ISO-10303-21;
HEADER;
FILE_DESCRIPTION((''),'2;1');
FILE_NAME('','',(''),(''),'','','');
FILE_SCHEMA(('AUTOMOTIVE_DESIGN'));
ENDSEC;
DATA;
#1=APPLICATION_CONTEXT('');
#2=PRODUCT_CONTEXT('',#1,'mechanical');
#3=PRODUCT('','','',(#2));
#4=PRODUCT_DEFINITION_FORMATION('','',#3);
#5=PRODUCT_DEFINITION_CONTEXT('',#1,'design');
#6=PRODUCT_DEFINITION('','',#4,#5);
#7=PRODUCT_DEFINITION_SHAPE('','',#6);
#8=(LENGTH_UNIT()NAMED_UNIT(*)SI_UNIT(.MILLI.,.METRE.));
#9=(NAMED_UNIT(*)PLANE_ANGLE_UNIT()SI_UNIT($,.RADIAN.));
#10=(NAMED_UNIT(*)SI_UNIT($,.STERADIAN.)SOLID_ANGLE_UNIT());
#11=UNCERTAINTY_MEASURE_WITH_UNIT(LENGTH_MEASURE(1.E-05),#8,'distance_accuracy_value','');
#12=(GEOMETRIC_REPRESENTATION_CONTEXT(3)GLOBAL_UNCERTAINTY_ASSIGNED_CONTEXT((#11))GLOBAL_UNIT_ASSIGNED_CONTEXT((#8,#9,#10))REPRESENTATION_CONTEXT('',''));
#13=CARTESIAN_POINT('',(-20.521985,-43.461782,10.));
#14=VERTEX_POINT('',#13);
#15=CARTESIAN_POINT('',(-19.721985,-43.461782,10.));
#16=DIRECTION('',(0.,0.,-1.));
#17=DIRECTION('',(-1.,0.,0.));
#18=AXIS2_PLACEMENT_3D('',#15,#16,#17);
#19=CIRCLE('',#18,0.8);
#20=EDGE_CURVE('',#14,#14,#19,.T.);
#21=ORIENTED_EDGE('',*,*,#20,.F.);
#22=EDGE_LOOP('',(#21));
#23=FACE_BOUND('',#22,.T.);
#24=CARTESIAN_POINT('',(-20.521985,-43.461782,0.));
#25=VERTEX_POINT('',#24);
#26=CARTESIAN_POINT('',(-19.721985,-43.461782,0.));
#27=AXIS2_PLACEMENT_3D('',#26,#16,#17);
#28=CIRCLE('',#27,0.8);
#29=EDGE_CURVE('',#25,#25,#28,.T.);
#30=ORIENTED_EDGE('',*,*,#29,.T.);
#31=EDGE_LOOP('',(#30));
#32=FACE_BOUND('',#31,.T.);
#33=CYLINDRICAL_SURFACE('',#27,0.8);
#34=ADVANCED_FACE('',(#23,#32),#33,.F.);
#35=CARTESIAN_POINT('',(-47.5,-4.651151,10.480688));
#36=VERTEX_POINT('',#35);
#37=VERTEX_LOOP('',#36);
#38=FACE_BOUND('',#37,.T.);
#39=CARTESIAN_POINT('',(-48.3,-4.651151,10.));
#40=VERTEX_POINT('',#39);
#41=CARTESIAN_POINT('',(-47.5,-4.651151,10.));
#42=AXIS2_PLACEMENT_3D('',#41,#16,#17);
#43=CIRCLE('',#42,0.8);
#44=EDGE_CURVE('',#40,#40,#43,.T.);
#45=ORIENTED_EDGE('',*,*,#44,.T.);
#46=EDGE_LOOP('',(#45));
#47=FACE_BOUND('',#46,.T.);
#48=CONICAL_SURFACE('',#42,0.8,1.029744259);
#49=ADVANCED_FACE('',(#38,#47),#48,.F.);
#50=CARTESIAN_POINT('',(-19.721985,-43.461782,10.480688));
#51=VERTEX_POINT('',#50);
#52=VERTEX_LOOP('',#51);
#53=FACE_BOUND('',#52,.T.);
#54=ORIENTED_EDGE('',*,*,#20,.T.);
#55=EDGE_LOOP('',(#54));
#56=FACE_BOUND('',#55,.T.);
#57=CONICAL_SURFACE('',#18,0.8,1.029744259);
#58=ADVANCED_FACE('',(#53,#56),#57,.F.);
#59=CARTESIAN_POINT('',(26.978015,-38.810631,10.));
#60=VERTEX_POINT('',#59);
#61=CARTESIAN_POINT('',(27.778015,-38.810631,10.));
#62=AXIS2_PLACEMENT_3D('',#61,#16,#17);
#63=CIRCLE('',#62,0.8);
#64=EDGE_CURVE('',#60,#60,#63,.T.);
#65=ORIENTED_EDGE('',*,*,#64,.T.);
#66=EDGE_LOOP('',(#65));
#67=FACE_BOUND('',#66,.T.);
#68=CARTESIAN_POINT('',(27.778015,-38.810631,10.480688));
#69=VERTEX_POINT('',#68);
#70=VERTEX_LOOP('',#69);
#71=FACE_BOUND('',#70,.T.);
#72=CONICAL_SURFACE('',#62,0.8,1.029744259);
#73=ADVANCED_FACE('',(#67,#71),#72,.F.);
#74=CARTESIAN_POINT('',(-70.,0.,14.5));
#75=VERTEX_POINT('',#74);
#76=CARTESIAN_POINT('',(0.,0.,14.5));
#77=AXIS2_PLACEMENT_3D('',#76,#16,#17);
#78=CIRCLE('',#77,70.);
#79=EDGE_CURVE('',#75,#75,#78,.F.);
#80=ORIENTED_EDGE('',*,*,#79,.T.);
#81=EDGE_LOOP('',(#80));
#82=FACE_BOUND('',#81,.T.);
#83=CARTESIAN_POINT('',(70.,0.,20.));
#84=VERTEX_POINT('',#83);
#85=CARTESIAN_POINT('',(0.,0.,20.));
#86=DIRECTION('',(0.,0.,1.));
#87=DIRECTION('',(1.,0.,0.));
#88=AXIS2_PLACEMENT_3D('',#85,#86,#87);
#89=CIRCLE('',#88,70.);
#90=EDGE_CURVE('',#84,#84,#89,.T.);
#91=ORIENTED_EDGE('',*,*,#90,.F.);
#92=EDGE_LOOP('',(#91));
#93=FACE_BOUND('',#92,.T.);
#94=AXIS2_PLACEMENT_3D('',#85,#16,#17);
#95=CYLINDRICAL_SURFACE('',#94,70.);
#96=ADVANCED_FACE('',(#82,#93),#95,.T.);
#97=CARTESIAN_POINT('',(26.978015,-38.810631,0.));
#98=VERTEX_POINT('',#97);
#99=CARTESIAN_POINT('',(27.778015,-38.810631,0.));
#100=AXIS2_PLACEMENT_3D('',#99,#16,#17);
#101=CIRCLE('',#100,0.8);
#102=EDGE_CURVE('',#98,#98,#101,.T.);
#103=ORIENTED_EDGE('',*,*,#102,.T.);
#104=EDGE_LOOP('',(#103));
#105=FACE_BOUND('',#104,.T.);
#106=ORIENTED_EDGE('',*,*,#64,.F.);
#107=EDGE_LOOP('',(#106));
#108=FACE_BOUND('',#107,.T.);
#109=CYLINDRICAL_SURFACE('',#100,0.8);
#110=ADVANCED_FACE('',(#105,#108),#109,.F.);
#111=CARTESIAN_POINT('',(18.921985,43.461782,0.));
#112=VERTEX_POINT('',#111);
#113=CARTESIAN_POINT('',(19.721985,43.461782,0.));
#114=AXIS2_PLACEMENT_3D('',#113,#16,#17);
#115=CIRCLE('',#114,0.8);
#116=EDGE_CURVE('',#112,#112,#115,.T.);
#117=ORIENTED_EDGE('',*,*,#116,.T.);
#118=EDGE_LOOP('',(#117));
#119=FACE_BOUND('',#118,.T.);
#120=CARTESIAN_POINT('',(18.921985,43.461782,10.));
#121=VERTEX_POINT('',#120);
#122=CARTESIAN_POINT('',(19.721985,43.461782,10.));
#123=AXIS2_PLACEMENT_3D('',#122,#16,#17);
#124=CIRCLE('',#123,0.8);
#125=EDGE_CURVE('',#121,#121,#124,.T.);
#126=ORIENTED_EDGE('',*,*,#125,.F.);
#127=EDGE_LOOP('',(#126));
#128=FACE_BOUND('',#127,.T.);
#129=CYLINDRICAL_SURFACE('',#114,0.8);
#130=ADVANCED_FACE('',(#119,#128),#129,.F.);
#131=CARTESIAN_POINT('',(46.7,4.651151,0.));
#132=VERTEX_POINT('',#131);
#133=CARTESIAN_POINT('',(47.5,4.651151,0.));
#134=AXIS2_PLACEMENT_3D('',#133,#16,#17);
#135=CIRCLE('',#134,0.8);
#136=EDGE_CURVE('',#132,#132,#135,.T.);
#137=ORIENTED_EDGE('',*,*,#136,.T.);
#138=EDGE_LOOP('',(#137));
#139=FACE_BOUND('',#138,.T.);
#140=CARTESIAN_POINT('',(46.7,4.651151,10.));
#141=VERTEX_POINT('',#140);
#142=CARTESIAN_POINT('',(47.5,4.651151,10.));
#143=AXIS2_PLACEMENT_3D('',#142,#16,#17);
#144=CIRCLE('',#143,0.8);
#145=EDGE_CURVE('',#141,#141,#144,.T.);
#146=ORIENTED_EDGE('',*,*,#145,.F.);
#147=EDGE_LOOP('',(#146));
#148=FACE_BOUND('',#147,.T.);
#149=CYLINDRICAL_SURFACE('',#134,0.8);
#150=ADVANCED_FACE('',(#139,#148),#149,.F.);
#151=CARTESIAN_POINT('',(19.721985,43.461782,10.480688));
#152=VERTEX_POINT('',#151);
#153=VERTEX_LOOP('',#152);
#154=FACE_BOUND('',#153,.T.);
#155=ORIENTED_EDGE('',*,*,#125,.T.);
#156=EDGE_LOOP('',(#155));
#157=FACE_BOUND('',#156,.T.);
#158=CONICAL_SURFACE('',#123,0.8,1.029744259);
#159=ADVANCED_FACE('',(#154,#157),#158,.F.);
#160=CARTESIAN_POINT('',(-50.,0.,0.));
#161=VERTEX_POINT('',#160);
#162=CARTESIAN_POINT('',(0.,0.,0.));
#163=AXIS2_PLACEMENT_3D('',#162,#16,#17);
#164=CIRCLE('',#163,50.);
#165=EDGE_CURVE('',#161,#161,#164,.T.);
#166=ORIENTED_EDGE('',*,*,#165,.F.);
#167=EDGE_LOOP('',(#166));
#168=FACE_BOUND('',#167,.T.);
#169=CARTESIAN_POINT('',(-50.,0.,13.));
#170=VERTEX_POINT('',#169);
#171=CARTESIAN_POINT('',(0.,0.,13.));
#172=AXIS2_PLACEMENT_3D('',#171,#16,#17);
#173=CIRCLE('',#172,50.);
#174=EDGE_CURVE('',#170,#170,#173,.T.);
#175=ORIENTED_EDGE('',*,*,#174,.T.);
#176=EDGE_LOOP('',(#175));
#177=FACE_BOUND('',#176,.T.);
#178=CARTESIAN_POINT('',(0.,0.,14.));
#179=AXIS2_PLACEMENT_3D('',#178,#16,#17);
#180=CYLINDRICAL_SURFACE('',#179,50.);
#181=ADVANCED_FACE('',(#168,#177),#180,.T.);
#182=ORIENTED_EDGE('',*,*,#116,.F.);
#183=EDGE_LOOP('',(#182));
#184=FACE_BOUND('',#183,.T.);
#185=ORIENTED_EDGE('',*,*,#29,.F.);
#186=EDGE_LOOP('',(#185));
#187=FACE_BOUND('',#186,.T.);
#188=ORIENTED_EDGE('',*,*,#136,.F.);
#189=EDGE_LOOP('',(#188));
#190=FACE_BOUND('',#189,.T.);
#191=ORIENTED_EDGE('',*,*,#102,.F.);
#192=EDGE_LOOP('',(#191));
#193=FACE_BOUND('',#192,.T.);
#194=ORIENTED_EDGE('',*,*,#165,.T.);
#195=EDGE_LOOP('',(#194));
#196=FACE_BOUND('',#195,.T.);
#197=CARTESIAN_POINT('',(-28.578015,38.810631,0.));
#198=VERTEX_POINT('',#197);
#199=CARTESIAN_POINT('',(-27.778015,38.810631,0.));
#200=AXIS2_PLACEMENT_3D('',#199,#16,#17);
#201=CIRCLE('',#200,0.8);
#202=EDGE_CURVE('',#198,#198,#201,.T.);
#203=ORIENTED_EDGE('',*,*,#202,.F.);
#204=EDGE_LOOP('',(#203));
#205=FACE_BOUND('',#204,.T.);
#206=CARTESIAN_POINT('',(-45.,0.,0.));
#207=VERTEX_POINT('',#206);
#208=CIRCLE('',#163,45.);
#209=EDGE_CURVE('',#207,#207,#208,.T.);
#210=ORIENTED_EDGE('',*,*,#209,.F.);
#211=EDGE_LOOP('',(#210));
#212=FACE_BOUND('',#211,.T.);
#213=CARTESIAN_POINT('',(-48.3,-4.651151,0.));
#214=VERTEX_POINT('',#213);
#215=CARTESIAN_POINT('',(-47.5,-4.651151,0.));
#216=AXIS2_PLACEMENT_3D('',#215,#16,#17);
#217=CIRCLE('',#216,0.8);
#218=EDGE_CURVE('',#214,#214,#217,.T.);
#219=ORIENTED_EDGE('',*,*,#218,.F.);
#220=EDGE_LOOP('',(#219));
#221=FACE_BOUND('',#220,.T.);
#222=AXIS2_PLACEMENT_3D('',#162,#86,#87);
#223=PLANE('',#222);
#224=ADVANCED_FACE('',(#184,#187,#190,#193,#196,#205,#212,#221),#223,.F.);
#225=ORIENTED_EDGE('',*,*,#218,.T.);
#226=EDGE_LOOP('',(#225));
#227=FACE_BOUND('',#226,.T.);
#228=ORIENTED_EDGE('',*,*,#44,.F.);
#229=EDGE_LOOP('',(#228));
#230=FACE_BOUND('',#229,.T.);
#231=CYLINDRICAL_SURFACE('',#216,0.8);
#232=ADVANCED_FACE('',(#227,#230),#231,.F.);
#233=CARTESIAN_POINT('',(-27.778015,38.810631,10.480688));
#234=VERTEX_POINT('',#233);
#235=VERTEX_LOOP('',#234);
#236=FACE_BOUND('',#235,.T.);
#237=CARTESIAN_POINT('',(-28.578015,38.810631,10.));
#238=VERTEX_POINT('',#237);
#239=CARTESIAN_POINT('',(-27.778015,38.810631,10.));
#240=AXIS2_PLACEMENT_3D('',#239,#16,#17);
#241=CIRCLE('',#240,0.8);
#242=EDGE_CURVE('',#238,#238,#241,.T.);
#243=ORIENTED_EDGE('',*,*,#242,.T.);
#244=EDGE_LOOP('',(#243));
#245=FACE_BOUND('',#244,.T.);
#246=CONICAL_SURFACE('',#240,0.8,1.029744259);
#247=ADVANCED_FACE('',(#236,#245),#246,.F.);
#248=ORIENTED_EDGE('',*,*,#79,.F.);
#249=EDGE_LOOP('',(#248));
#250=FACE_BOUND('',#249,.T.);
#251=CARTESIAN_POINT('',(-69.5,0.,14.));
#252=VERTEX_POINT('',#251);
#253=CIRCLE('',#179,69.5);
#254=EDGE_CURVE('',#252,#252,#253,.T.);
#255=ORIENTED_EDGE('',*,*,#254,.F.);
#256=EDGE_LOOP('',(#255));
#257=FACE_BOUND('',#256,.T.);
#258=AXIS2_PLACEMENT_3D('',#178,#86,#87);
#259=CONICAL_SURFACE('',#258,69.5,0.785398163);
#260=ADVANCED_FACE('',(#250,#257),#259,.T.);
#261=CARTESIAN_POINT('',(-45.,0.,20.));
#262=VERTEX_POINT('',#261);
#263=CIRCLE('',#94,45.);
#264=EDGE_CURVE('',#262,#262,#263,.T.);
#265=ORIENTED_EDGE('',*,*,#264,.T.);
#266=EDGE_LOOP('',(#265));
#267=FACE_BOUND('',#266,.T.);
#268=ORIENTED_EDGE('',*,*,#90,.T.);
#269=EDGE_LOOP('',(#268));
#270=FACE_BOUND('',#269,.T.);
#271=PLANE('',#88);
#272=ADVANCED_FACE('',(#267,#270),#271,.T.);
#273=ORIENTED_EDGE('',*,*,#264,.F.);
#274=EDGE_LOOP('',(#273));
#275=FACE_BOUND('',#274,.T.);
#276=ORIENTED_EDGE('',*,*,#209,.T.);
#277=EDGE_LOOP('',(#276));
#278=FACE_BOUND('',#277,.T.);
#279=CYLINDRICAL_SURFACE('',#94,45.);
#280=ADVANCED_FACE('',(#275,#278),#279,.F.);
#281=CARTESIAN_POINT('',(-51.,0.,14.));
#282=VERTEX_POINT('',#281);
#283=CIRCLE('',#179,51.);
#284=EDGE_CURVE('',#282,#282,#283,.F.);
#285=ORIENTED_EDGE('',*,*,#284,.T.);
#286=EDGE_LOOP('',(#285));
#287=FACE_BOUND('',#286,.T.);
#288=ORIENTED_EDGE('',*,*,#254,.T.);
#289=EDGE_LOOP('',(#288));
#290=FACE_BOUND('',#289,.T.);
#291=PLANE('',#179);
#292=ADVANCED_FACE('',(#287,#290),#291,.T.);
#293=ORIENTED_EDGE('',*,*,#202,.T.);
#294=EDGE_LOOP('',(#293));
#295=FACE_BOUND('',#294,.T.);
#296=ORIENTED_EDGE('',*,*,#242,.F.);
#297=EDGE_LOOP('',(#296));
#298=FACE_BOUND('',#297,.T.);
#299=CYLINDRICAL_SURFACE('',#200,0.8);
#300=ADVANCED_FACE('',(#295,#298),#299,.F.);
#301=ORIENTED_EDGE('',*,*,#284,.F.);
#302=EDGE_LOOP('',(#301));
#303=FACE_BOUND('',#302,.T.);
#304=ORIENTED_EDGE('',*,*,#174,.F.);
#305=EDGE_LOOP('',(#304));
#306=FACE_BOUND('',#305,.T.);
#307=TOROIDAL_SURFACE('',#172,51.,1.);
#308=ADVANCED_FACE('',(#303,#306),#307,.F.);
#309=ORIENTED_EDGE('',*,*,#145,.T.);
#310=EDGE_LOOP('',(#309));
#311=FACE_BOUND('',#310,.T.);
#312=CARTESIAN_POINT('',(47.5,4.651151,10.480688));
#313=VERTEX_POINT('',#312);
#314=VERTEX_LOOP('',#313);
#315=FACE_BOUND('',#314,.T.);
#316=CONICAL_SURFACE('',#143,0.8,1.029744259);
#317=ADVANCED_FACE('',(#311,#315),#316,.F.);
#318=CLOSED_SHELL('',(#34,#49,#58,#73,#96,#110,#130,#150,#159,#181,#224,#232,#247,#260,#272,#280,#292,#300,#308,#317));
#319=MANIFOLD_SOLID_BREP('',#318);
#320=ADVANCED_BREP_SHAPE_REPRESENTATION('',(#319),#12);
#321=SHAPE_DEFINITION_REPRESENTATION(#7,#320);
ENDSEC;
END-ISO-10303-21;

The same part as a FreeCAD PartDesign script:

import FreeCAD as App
import Part
import Sketcher
Q = App.Units.Quantity


def edges_at(feature, points):
    """Names of the edges that pass closest to the given points."""
    edges = feature.Shape.Edges
    near = lambda p: min(range(len(edges)), key=lambda i: edges[i].distToShape(Part.Vertex(*p))[0])
    return sorted({f"Edge{near(p) + 1}" for p in points})

doc = App.newDocument("Part")
body = doc.addObject("PartDesign::Body", "Body")

# Sketch on XY plane
sketch1 = doc.addObject("Sketcher::SketchObject", "Sketch")
body.addObject(sketch1)
sketch1.AttachmentSupport = (doc.XY_Plane, [""])
sketch1.MapMode = "FlatFace"
sketch1.addGeometry(Part.Circle(App.Vector(0, 0, 0), App.Vector(0, 0, 1), 70), False)
sketch1.addConstraint(Sketcher.Constraint("Coincident", 0, 3, -1, 1))
sketch1.addConstraint(Sketcher.Constraint("Diameter", 0, 140.0))
pad1 = doc.addObject("PartDesign::Pad", "Pad")
body.addObject(pad1)
pad1.Profile = sketch1
pad1.Length = 20

# Sketch on XY plane
sketch2 = doc.addObject("Sketcher::SketchObject", "Sketch001")
body.addObject(sketch2)
sketch2.AttachmentSupport = (doc.XY_Plane, [""])
sketch2.MapMode = "FlatFace"
sketch2.addGeometry(Part.LineSegment(App.Vector(91, 91, 0), App.Vector(91, -91, 0)), False)
sketch2.addGeometry(Part.LineSegment(App.Vector(91, -91, 0), App.Vector(-91, -91, 0)), False)
sketch2.addGeometry(Part.LineSegment(App.Vector(-91, -91, 0), App.Vector(-91, 91, 0)), False)
sketch2.addGeometry(Part.LineSegment(App.Vector(-91, 91, 0), App.Vector(91, 91, 0)), False)
sketch2.addGeometry(Part.Circle(App.Vector(0, 0, 0), App.Vector(0, 0, 1), 50), False)
sketch2.addConstraint(Sketcher.Constraint("Coincident", 0, 2, 1, 1))
sketch2.addConstraint(Sketcher.Constraint("Coincident", 1, 2, 2, 1))
sketch2.addConstraint(Sketcher.Constraint("Coincident", 2, 2, 3, 1))
sketch2.addConstraint(Sketcher.Constraint("Coincident", 3, 2, 0, 1))
sketch2.addConstraint(Sketcher.Constraint("Vertical", 0))
sketch2.addConstraint(Sketcher.Constraint("Horizontal", 1))
sketch2.addConstraint(Sketcher.Constraint("Vertical", 2))
sketch2.addConstraint(Sketcher.Constraint("Horizontal", 3))
sketch2.addConstraint(Sketcher.Constraint("Coincident", 4, 3, -1, 1))
sketch2.addConstraint(Sketcher.Constraint("Symmetric", 0, 2, 2, 2, -1, 1))
sketch2.addConstraint(Sketcher.Constraint("Equal", 3, 0))
sketch2.addConstraint(Sketcher.Constraint("Diameter", 4, 100.0))
sketch2.addConstraint(Sketcher.Constraint("DistanceX", 1, 2, 1, 1, 181.8))
pocket1 = doc.addObject("PartDesign::Pocket", "Pocket")
body.addObject(pocket1)
pocket1.Profile = sketch2
pocket1.Length = 14
pocket1.Reversed = True

# Sketch on XY plane
sketch3 = doc.addObject("Sketcher::SketchObject", "Sketch002")
body.addObject(sketch3)
sketch3.AttachmentSupport = (doc.XY_Plane, [""])
sketch3.MapMode = "FlatFace"
sketch3.addGeometry(Part.Circle(App.Vector(0, 0, 0), App.Vector(0, 0, 1), 45), False)
sketch3.addConstraint(Sketcher.Constraint("Coincident", 0, 3, -1, 1))
sketch3.addConstraint(Sketcher.Constraint("Diameter", 0, 90.0))
pocket2 = doc.addObject("PartDesign::Pocket", "Pocket001")
body.addObject(pocket2)
pocket2.Profile = sketch3
pocket2.Type = "ThroughAll"
pocket2.Reversed = True
doc.recompute()

fillet = doc.addObject("PartDesign::Fillet", "Fillet")
body.addObject(fillet)
fillet.Base = (pocket2, edges_at(pocket2, [(50, 0, 14)]))
fillet.Radius = 1
doc.recompute()

chamfer = doc.addObject("PartDesign::Chamfer", "Chamfer")
body.addObject(chamfer)
chamfer.Base = (fillet, edges_at(fillet, [(-70, 0, 14)]))
chamfer.Size = 0.5

# Sketch on YZ plane
sketch4 = doc.addObject("Sketcher::SketchObject", "Sketch003")
body.addObject(sketch4)
sketch4.AttachmentSupport = (doc.YZ_Plane, [""])
sketch4.MapMode = "FlatFace"
sketch4.AttachmentOffset = App.Placement(App.Vector(0, 0, -47.5), App.Rotation())
sketch4.addGeometry(Part.LineSegment(App.Vector(-4.7, 10.5, 0), App.Vector(-4.7, 0, 0)), False)
sketch4.addGeometry(Part.LineSegment(App.Vector(-4.7, 0, 0), App.Vector(-3.9, 0, 0)), False)
sketch4.addGeometry(Part.LineSegment(App.Vector(-3.9, 0, 0), App.Vector(-3.9, 10, 0)), False)
sketch4.addGeometry(Part.LineSegment(App.Vector(-3.9, 10, 0), App.Vector(-4.7, 10.5, 0)), False)
sketch4.addGeometry(Part.LineSegment(App.Vector(-4.7, 0, 0), App.Vector(-4.7, 10.5, 0)), True)  # axis
sketch4.addConstraint(Sketcher.Constraint("Coincident", 0, 2, 1, 1))
sketch4.addConstraint(Sketcher.Constraint("Coincident", 1, 2, 2, 1))
sketch4.addConstraint(Sketcher.Constraint("Coincident", 2, 2, 3, 1))
sketch4.addConstraint(Sketcher.Constraint("Coincident", 3, 2, 0, 1))
sketch4.addConstraint(Sketcher.Constraint("Vertical", 0))
sketch4.addConstraint(Sketcher.Constraint("Horizontal", 1))
sketch4.addConstraint(Sketcher.Constraint("Vertical", 2))
sketch4.addConstraint(Sketcher.Constraint("Vertical", 4))
sketch4.addConstraint(Sketcher.Constraint("Coincident", 4, 1, 0, 2))
sketch4.addConstraint(Sketcher.Constraint("PointOnObject", 0, 2, -1))
sketch4.addConstraint(Sketcher.Constraint("Equal", 0, 4))
sketch4.addConstraint(Sketcher.Constraint("DistanceY", 2, 1, 2, 2, 10.0))
sketch4.addConstraint(Sketcher.Constraint("Angle", 3, Q("149 deg")))
sketch4.addConstraint(Sketcher.Constraint("DistanceX", 1, 1, 1, 2, 0.8))
sketch4.addConstraint(Sketcher.Constraint("DistanceX", 0, 2, -1, 1, 4.651151))
groove = doc.addObject("PartDesign::Groove", "Groove")
body.addObject(groove)
groove.Profile = sketch4
groove.ReferenceAxis = (sketch4, ["Axis0"])
groove.Angle = 360
doc.recompute()

polarpattern = doc.addObject("PartDesign::PolarPattern", "PolarPattern")
body.addObject(polarpattern)
polarpattern.Originals = [groove]
polarpattern.Axis = (doc.Z_Axis, [""])
polarpattern.Angle = 360
polarpattern.Occurrences = 6
body.Tip = polarpattern

doc.recompute()
